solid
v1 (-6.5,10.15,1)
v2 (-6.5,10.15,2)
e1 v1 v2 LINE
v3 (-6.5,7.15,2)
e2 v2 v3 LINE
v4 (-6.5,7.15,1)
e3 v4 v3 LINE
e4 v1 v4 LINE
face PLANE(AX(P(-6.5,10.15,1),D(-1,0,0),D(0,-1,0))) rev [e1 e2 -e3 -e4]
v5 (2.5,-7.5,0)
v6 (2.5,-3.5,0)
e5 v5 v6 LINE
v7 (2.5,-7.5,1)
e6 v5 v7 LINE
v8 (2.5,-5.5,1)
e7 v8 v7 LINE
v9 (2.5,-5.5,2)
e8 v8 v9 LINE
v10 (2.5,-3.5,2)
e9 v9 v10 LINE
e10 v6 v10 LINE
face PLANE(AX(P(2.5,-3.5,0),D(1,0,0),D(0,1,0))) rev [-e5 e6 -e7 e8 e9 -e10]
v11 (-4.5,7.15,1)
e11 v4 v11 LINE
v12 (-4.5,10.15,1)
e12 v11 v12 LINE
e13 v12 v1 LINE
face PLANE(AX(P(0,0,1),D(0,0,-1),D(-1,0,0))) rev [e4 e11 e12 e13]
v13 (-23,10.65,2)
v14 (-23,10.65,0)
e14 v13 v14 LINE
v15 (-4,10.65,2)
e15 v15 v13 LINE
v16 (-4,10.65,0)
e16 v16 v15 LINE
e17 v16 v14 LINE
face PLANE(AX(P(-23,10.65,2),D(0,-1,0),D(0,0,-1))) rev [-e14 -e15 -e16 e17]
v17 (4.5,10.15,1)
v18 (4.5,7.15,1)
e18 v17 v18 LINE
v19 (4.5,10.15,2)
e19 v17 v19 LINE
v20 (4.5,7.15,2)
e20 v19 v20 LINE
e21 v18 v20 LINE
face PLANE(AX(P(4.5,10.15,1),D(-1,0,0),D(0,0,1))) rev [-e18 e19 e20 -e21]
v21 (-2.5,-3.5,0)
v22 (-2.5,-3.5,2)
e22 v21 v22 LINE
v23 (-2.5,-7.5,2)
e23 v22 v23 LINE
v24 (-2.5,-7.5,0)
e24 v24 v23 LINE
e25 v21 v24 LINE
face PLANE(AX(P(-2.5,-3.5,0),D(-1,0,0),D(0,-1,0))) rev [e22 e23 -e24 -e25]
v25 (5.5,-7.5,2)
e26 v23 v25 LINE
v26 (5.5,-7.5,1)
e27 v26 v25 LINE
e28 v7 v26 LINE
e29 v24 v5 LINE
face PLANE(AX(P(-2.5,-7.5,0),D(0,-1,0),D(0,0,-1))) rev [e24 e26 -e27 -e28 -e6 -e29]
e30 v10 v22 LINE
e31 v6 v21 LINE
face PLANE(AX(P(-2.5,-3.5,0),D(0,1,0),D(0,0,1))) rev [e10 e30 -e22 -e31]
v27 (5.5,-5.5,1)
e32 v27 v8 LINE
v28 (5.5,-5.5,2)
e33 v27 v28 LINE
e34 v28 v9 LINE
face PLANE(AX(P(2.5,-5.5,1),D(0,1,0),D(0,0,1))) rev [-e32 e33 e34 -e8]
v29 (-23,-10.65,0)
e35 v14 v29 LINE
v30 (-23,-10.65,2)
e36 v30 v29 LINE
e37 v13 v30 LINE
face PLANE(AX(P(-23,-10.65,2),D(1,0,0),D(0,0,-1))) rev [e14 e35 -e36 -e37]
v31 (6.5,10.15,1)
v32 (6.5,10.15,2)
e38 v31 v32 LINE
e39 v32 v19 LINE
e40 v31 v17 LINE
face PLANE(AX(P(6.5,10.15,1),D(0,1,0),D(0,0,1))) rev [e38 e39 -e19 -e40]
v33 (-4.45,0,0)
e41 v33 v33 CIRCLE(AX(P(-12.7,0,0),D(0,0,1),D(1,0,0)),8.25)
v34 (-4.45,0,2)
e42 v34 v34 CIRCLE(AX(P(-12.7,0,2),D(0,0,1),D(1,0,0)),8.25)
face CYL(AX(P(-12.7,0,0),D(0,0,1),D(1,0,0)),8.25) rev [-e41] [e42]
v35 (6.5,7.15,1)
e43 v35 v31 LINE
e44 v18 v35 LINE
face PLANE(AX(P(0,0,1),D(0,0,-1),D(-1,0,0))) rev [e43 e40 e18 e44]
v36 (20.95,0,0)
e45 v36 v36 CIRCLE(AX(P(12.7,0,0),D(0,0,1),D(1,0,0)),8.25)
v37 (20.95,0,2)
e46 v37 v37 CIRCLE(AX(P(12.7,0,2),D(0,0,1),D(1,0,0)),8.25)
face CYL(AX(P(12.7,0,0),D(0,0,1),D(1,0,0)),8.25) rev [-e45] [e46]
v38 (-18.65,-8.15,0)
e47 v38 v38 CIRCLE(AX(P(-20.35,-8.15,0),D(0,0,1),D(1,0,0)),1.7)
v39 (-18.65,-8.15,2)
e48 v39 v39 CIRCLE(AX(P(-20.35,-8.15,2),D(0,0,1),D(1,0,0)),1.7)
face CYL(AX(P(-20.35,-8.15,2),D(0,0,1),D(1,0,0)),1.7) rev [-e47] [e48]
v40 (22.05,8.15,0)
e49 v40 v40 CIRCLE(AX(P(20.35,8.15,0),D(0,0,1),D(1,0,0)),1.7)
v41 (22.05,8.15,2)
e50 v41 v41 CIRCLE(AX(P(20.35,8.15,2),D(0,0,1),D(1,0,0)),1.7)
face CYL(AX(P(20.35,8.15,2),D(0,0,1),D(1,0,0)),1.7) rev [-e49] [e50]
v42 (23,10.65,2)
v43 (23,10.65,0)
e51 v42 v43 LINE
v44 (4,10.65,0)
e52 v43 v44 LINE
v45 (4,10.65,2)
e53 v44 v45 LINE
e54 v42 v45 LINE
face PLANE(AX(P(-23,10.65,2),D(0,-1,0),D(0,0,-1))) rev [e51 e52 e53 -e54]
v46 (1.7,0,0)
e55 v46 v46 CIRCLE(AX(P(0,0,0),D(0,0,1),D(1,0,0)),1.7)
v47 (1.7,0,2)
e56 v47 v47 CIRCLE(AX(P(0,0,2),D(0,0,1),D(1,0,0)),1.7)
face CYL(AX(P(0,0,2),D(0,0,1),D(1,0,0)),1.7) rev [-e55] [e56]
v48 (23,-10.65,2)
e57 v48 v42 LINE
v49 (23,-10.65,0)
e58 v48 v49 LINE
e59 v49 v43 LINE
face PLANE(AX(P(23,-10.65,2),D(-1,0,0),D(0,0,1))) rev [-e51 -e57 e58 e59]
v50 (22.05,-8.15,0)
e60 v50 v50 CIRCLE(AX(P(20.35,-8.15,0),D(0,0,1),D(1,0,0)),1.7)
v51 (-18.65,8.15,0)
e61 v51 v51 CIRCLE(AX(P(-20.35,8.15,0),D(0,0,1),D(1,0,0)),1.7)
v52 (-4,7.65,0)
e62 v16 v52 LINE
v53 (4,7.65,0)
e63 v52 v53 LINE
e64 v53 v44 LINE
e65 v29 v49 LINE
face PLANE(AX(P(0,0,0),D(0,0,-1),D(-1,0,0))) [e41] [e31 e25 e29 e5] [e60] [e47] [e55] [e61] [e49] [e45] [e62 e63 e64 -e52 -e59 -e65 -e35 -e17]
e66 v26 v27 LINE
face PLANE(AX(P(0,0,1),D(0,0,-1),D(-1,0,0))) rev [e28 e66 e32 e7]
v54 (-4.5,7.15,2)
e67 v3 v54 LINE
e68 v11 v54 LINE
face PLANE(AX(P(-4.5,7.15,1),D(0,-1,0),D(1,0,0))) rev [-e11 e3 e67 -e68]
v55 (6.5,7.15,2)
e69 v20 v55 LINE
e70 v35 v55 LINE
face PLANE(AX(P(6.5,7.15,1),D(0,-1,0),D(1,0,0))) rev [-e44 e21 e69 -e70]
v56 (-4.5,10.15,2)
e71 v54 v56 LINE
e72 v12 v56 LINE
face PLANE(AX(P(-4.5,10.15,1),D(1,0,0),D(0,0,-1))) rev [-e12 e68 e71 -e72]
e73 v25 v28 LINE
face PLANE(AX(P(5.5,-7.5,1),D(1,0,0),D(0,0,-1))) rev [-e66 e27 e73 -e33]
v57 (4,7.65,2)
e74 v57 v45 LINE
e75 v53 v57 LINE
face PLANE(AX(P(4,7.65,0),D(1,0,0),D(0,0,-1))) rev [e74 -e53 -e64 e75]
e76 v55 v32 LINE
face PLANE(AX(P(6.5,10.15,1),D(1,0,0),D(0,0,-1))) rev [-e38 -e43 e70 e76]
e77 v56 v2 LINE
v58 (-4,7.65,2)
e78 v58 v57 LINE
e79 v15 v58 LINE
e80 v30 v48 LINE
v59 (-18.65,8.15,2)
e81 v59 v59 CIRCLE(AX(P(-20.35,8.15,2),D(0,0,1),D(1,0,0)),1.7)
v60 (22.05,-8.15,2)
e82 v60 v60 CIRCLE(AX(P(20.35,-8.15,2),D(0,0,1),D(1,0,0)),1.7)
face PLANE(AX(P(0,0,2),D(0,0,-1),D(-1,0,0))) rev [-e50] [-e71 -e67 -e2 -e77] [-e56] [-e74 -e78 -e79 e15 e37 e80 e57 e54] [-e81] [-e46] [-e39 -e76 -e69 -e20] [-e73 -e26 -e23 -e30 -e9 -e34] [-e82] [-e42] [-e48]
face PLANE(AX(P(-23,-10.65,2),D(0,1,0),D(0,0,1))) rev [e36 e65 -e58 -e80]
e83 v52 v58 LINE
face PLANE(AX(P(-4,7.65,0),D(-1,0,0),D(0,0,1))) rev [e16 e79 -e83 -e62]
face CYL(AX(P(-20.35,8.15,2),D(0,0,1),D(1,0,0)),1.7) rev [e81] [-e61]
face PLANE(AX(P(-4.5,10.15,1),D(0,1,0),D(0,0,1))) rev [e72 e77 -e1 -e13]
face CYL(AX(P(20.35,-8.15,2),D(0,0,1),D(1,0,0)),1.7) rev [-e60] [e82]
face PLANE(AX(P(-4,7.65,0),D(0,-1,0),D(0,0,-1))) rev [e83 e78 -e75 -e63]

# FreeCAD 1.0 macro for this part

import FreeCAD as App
import Part
import Sketcher

V = App.Vector

doc = App.newDocument("Part")
body = doc.addObject("PartDesign::Body", "Body")

# Sketch on XY plane
sketch1 = doc.addObject("Sketcher::SketchObject", "Sketch")
body.addObject(sketch1)
sketch1.AttachmentSupport = (doc.XY_Plane, [""])
sketch1.MapMode = "FlatFace"
sketch1.addGeometry(Part.LineSegment(V(-23, 11, 0), V(-23, -11, 0)), False)
sketch1.addGeometry(Part.LineSegment(V(-23, -11, 0), V(23, -11, 0)), False)
sketch1.addGeometry(Part.LineSegment(V(23, -11, 0), V(23, 11, 0)), False)
sketch1.addGeometry(Part.LineSegment(V(23, 11, 0), V(-23, 11, 0)), False)
sketch1.addConstraint(Sketcher.Constraint("Coincident", 0, 2, 1, 1))
sketch1.addConstraint(Sketcher.Constraint("Coincident", 1, 2, 2, 1))
sketch1.addConstraint(Sketcher.Constraint("Coincident", 2, 2, 3, 1))
sketch1.addConstraint(Sketcher.Constraint("Coincident", 3, 2, 0, 1))
sketch1.addConstraint(Sketcher.Constraint("Vertical", 0))
sketch1.addConstraint(Sketcher.Constraint("Horizontal", 1))
sketch1.addConstraint(Sketcher.Constraint("Vertical", 2))
sketch1.addConstraint(Sketcher.Constraint("Horizontal", 3))
sketch1.addConstraint(Sketcher.Constraint("Symmetric", 0, 2, 2, 2, -1, 1))
sketch1.addConstraint(Sketcher.Constraint("DistanceX", 1, 1, 1, 2, 46.0))
sketch1.addConstraint(Sketcher.Constraint("DistanceY", 0, 2, 0, 1, 21.3))
pad1 = doc.addObject("PartDesign::Pad", "Pad")
body.addObject(pad1)
pad1.Profile = sketch1
pad1.Length = 2

# Sketch on XY plane
sketch2 = doc.addObject("Sketcher::SketchObject", "Sketch001")
body.addObject(sketch2)
sketch2.AttachmentSupport = (doc.XY_Plane, [""])
sketch2.MapMode = "FlatFace"
sketch2.AttachmentOffset = App.Placement(V(0, 0, 2), App.Rotation())
sketch2.addGeometry(Part.Circle(V(-13, 0, 0), V(0, 0, 1), 8), False)
sketch2.addGeometry(Part.Circle(V(13, 0, 0), V(0, 0, 1), 8), False)
sketch2.addConstraint(Sketcher.Constraint("Equal", 0, 1))
sketch2.addConstraint(Sketcher.Constraint("Symmetric", 0, 3, 1, 3, -1, 1))
sketch2.addConstraint(Sketcher.Constraint("PointOnObject", 0, 3, -1))
sketch2.addConstraint(Sketcher.Constraint("Diameter", 0, 16.5))
sketch2.addConstraint(Sketcher.Constraint("DistanceX", 0, 3, -1, 1, 12.7))
pocket1 = doc.addObject("PartDesign::Pocket", "Pocket")
body.addObject(pocket1)
pocket1.Profile = sketch2
pocket1.Type = "ThroughAll"

# Sketch on XY plane
sketch3 = doc.addObject("Sketcher::SketchObject", "Sketch002")
body.addObject(sketch3)
sketch3.AttachmentSupport = (doc.XY_Plane, [""])
sketch3.MapMode = "FlatFace"
sketch3.AttachmentOffset = App.Placement(V(0, 0, 2), App.Rotation())
sketch3.addGeometry(Part.LineSegment(V(-4, 10.7, 0), V(-4, 7.7, 0)), False)
sketch3.addGeometry(Part.LineSegment(V(-4, 7.7, 0), V(4, 7.7, 0)), False)
sketch3.addGeometry(Part.LineSegment(V(4, 7.7, 0), V(4, 10.7, 0)), False)
sketch3.addGeometry(Part.LineSegment(V(4, 10.7, 0), V(-4, 10.7, 0)), False)
sketch3.addConstraint(Sketcher.Constraint("Coincident", 0, 2, 1, 1))
sketch3.addConstraint(Sketcher.Constraint("Coincident", 1, 2, 2, 1))
sketch3.addConstraint(Sketcher.Constraint("Coincident", 2, 2, 3, 1))
sketch3.addConstraint(Sketcher.Constraint("Coincident", 3, 2, 0, 1))
sketch3.addConstraint(Sketcher.Constraint("Vertical", 0))
sketch3.addConstraint(Sketcher.Constraint("Horizontal", 1))
sketch3.addConstraint(Sketcher.Constraint("Vertical", 2))
sketch3.addConstraint(Sketcher.Constraint("Horizontal", 3))
sketch3.addConstraint(Sketcher.Constraint("DistanceX", 1, 1, 1, 2, 8.0))
sketch3.addConstraint(Sketcher.Constraint("DistanceY", 0, 2, 0, 1, 3.0))
sketch3.addConstraint(Sketcher.Constraint("DistanceX", 0, 2, -1, 1, 4.0))
sketch3.addConstraint(Sketcher.Constraint("DistanceY", -1, 1, 0, 2, 7.65))
pocket2 = doc.addObject("PartDesign::Pocket", "Pocket001")
body.addObject(pocket2)
pocket2.Profile = sketch3
pocket2.Type = "ThroughAll"

# Sketch on XY plane
sketch4 = doc.addObject("Sketcher::SketchObject", "Sketch003")
body.addObject(sketch4)
sketch4.AttachmentSupport = (doc.XY_Plane, [""])
sketch4.MapMode = "FlatFace"
sketch4.AttachmentOffset = App.Placement(V(0, 0, 2), App.Rotation())
sketch4.addGeometry(Part.LineSegment(V(-2.5, -3.5, 0), V(-2.5, -7.5, 0)), False)
sketch4.addGeometry(Part.LineSegment(V(-2.5, -7.5, 0), V(2.5, -7.5, 0)), False)
sketch4.addGeometry(Part.LineSegment(V(2.5, -7.5, 0), V(2.5, -3.5, 0)), False)
sketch4.addGeometry(Part.LineSegment(V(2.5, -3.5, 0), V(-2.5, -3.5, 0)), False)
sketch4.addConstraint(Sketcher.Constraint("Coincident", 0, 2, 1, 1))
sketch4.addConstraint(Sketcher.Constraint("Coincident", 1, 2, 2, 1))
sketch4.addConstraint(Sketcher.Constraint("Coincident", 2, 2, 3, 1))
sketch4.addConstraint(Sketcher.Constraint("Coincident", 3, 2, 0, 1))
sketch4.addConstraint(Sketcher.Constraint("Vertical", 0))
sketch4.addConstraint(Sketcher.Constraint("Horizontal", 1))
sketch4.addConstraint(Sketcher.Constraint("Vertical", 2))
sketch4.addConstraint(Sketcher.Constraint("Horizontal", 3))
sketch4.addConstraint(Sketcher.Constraint("DistanceX", 1, 1, 1, 2, 5.0))
sketch4.addConstraint(Sketcher.Constraint("DistanceY", 0, 2, 0, 1, 4.0))
sketch4.addConstraint(Sketcher.Constraint("DistanceX", 0, 2, -1, 1, 2.5))
sketch4.addConstraint(Sketcher.Constraint("DistanceY", 0, 2, -1, 1, 7.5))
pocket3 = doc.addObject("PartDesign::Pocket", "Pocket002")
body.addObject(pocket3)
pocket3.Profile = sketch4
pocket3.Type = "ThroughAll"

# Sketch on XY plane
sketch5 = doc.addObject("Sketcher::SketchObject", "Sketch004")
body.addObject(sketch5)
sketch5.AttachmentSupport = (doc.XY_Plane, [""])
sketch5.MapMode = "FlatFace"
sketch5.AttachmentOffset = App.Placement(V(0, 0, 2), App.Rotation())
sketch5.addGeometry(Part.LineSegment(V(2.5, -5.5, 0), V(2.5, -7.5, 0)), False)
sketch5.addGeometry(Part.LineSegment(V(2.5, -7.5, 0), V(5.5, -7.5, 0)), False)
sketch5.addGeometry(Part.LineSegment(V(5.5, -7.5, 0), V(5.5, -5.5, 0)), False)
sketch5.addGeometry(Part.LineSegment(V(5.5, -5.5, 0), V(2.5, -5.5, 0)), False)
sketch5.addGeometry(Part.LineSegment(V(-6.5, 10.2, 0), V(-6.5, 7.2, 0)), False)
sketch5.addGeometry(Part.LineSegment(V(-6.5, 7.2, 0), V(-4.5, 7.2, 0)), False)
sketch5.addGeometry(Part.LineSegment(V(-4.5, 7.2, 0), V(-4.5, 10.2, 0)), False)
sketch5.addGeometry(Part.LineSegment(V(-4.5, 10.2, 0), V(-6.5, 10.2, 0)), False)
sketch5.addGeometry(Part.LineSegment(V(4.5, 10.2, 0), V(4.5, 7.2, 0)), False)
sketch5.addGeometry(Part.LineSegment(V(4.5, 7.2, 0), V(6.5, 7.2, 0)), False)
sketch5.addGeometry(Part.LineSegment(V(6.5, 7.2, 0), V(6.5, 10.2, 0)), False)
sketch5.addGeometry(Part.LineSegment(V(6.5, 10.2, 0), V(4.5, 10.2, 0)), False)
sketch5.addConstraint(Sketcher.Constraint("Coincident", 0, 2, 1, 1))
sketch5.addConstraint(Sketcher.Constraint("Coincident", 1, 2, 2, 1))
sketch5.addConstraint(Sketcher.Constraint("Coincident", 2, 2, 3, 1))
sketch5.addConstraint(Sketcher.Constraint("Coincident", 3, 2, 0, 1))
sketch5.addConstraint(Sketcher.Constraint("Coincident", 4, 2, 5, 1))
sketch5.addConstraint(Sketcher.Constraint("Coincident", 5, 2, 6, 1))
sketch5.addConstraint(Sketcher.Constraint("Coincident", 6, 2, 7, 1))
sketch5.addConstraint(Sketcher.Constraint("Coincident", 7, 2, 4, 1))
sketch5.addConstraint(Sketcher.Constraint("Coincident", 8, 2, 9, 1))
sketch5.addConstraint(Sketcher.Constraint("Coincident", 9, 2, 10, 1))
sketch5.addConstraint(Sketcher.Constraint("Coincident", 10, 2, 11, 1))
sketch5.addConstraint(Sketcher.Constraint("Coincident", 11, 2, 8, 1))
sketch5.addConstraint(Sketcher.Constraint("Vertical", 0))
sketch5.addConstraint(Sketcher.Constraint("Horizontal", 1))
sketch5.addConstraint(Sketcher.Constraint("Vertical", 2))
sketch5.addConstraint(Sketcher.Constraint("Horizontal", 3))
sketch5.addConstraint(Sketcher.Constraint("Vertical", 4))
sketch5.addConstraint(Sketcher.Constraint("Horizontal", 5))
sketch5.addConstraint(Sketcher.Constraint("Vertical", 6))
sketch5.addConstraint(Sketcher.Constraint("Horizontal", 7))
sketch5.addConstraint(Sketcher.Constraint("Vertical", 8))
sketch5.addConstraint(Sketcher.Constraint("Horizontal", 9))
sketch5.addConstraint(Sketcher.Constraint("Vertical", 10))
sketch5.addConstraint(Sketcher.Constraint("Horizontal", 11))
sketch5.addConstraint(Sketcher.Constraint("Symmetric", 5, 2, 8, 2, -2))
sketch5.addConstraint(Sketcher.Constraint("Symmetric", 7, 2, 10, 2, -2))
sketch5.addConstraint(Sketcher.Constraint("Equal", 11, 0))
sketch5.addConstraint(Sketcher.Constraint("Equal", 3, 4))
sketch5.addConstraint(Sketcher.Constraint("DistanceX", 1, 1, 1, 2, 3.0))
sketch5.addConstraint(Sketcher.Constraint("DistanceX", 5, 1, 5, 2, 2.0))
sketch5.addConstraint(Sketcher.Constraint("DistanceX", 4, 2, 3, 2, 9.0))
sketch5.addConstraint(Sketcher.Constraint("DistanceX", 5, 2, 8, 2, 9.0))
sketch5.addConstraint(Sketcher.Constraint("DistanceY", 0, 2, -1, 1, 7.5))
sketch5.addConstraint(Sketcher.Constraint("DistanceY", -1, 1, 4, 2, 7.15))
pocket4 = doc.addObject("PartDesign::Pocket", "Pocket003")
body.addObject(pocket4)
pocket4.Profile = sketch5
pocket4.Length = 1

# Sketch on XY plane
sketch6 = doc.addObject("Sketcher::SketchObject", "Sketch005")
body.addObject(sketch6)
sketch6.AttachmentSupport = (doc.XY_Plane, [""])
sketch6.MapMode = "FlatFace"
sketch6.AttachmentOffset = App.Placement(V(0, 0, 2), App.Rotation())
sketch6.addGeometry(Part.Circle(V(0, 0, 0), V(0, 0, 1), 1.7), False)
sketch6.addGeometry(Part.Circle(V(20.4, 8.2, 0), V(0, 0, 1), 1.7), False)
sketch6.addGeometry(Part.Circle(V(-20.4, -8.2, 0), V(0, 0, 1), 1.7), False)
sketch6.addGeometry(Part.Circle(V(-20.4, 8.2, 0), V(0, 0, 1), 1.7), False)
sketch6.addGeometry(Part.Circle(V(20.4, -8.2, 0), V(0, 0, 1), 1.7), False)
sketch6.addConstraint(Sketcher.Constraint("Coincident", 0, 3, -1, 1))
sketch6.addConstraint(Sketcher.Constraint("Equal", 0, 1))
sketch6.addConstraint(Sketcher.Constraint("Equal", 1, 2))
sketch6.addConstraint(Sketcher.Constraint("Equal", 2, 3))
sketch6.addConstraint(Sketcher.Constraint("Equal", 3, 4))
sketch6.addConstraint(Sketcher.Constraint("Symmetric", 1, 3, 2, 3, -1, 1))
sketch6.addConstraint(Sketcher.Constraint("Symmetric", 3, 3, 4, 3, -1, 1))
sketch6.addConstraint(Sketcher.Constraint("Symmetric", 1, 3, 3, 3, -2))
sketch6.addConstraint(Sketcher.Constraint("Diameter", 0, 3.4))
sketch6.addConstraint(Sketcher.Constraint("DistanceX", 2, 3, 1, 3, 40.7))
sketch6.addConstraint(Sketcher.Constraint("DistanceY", 2, 3, 1, 3, 16.3))
doc.recompute()
hole = doc.addObject("PartDesign::Hole", "Hole")
body.addObject(hole)
hole.Profile = sketch6
hole.ThreadType = "None"
hole.Diameter = 3.4
hole.DepthType = "ThroughAll"

doc.recompute()
